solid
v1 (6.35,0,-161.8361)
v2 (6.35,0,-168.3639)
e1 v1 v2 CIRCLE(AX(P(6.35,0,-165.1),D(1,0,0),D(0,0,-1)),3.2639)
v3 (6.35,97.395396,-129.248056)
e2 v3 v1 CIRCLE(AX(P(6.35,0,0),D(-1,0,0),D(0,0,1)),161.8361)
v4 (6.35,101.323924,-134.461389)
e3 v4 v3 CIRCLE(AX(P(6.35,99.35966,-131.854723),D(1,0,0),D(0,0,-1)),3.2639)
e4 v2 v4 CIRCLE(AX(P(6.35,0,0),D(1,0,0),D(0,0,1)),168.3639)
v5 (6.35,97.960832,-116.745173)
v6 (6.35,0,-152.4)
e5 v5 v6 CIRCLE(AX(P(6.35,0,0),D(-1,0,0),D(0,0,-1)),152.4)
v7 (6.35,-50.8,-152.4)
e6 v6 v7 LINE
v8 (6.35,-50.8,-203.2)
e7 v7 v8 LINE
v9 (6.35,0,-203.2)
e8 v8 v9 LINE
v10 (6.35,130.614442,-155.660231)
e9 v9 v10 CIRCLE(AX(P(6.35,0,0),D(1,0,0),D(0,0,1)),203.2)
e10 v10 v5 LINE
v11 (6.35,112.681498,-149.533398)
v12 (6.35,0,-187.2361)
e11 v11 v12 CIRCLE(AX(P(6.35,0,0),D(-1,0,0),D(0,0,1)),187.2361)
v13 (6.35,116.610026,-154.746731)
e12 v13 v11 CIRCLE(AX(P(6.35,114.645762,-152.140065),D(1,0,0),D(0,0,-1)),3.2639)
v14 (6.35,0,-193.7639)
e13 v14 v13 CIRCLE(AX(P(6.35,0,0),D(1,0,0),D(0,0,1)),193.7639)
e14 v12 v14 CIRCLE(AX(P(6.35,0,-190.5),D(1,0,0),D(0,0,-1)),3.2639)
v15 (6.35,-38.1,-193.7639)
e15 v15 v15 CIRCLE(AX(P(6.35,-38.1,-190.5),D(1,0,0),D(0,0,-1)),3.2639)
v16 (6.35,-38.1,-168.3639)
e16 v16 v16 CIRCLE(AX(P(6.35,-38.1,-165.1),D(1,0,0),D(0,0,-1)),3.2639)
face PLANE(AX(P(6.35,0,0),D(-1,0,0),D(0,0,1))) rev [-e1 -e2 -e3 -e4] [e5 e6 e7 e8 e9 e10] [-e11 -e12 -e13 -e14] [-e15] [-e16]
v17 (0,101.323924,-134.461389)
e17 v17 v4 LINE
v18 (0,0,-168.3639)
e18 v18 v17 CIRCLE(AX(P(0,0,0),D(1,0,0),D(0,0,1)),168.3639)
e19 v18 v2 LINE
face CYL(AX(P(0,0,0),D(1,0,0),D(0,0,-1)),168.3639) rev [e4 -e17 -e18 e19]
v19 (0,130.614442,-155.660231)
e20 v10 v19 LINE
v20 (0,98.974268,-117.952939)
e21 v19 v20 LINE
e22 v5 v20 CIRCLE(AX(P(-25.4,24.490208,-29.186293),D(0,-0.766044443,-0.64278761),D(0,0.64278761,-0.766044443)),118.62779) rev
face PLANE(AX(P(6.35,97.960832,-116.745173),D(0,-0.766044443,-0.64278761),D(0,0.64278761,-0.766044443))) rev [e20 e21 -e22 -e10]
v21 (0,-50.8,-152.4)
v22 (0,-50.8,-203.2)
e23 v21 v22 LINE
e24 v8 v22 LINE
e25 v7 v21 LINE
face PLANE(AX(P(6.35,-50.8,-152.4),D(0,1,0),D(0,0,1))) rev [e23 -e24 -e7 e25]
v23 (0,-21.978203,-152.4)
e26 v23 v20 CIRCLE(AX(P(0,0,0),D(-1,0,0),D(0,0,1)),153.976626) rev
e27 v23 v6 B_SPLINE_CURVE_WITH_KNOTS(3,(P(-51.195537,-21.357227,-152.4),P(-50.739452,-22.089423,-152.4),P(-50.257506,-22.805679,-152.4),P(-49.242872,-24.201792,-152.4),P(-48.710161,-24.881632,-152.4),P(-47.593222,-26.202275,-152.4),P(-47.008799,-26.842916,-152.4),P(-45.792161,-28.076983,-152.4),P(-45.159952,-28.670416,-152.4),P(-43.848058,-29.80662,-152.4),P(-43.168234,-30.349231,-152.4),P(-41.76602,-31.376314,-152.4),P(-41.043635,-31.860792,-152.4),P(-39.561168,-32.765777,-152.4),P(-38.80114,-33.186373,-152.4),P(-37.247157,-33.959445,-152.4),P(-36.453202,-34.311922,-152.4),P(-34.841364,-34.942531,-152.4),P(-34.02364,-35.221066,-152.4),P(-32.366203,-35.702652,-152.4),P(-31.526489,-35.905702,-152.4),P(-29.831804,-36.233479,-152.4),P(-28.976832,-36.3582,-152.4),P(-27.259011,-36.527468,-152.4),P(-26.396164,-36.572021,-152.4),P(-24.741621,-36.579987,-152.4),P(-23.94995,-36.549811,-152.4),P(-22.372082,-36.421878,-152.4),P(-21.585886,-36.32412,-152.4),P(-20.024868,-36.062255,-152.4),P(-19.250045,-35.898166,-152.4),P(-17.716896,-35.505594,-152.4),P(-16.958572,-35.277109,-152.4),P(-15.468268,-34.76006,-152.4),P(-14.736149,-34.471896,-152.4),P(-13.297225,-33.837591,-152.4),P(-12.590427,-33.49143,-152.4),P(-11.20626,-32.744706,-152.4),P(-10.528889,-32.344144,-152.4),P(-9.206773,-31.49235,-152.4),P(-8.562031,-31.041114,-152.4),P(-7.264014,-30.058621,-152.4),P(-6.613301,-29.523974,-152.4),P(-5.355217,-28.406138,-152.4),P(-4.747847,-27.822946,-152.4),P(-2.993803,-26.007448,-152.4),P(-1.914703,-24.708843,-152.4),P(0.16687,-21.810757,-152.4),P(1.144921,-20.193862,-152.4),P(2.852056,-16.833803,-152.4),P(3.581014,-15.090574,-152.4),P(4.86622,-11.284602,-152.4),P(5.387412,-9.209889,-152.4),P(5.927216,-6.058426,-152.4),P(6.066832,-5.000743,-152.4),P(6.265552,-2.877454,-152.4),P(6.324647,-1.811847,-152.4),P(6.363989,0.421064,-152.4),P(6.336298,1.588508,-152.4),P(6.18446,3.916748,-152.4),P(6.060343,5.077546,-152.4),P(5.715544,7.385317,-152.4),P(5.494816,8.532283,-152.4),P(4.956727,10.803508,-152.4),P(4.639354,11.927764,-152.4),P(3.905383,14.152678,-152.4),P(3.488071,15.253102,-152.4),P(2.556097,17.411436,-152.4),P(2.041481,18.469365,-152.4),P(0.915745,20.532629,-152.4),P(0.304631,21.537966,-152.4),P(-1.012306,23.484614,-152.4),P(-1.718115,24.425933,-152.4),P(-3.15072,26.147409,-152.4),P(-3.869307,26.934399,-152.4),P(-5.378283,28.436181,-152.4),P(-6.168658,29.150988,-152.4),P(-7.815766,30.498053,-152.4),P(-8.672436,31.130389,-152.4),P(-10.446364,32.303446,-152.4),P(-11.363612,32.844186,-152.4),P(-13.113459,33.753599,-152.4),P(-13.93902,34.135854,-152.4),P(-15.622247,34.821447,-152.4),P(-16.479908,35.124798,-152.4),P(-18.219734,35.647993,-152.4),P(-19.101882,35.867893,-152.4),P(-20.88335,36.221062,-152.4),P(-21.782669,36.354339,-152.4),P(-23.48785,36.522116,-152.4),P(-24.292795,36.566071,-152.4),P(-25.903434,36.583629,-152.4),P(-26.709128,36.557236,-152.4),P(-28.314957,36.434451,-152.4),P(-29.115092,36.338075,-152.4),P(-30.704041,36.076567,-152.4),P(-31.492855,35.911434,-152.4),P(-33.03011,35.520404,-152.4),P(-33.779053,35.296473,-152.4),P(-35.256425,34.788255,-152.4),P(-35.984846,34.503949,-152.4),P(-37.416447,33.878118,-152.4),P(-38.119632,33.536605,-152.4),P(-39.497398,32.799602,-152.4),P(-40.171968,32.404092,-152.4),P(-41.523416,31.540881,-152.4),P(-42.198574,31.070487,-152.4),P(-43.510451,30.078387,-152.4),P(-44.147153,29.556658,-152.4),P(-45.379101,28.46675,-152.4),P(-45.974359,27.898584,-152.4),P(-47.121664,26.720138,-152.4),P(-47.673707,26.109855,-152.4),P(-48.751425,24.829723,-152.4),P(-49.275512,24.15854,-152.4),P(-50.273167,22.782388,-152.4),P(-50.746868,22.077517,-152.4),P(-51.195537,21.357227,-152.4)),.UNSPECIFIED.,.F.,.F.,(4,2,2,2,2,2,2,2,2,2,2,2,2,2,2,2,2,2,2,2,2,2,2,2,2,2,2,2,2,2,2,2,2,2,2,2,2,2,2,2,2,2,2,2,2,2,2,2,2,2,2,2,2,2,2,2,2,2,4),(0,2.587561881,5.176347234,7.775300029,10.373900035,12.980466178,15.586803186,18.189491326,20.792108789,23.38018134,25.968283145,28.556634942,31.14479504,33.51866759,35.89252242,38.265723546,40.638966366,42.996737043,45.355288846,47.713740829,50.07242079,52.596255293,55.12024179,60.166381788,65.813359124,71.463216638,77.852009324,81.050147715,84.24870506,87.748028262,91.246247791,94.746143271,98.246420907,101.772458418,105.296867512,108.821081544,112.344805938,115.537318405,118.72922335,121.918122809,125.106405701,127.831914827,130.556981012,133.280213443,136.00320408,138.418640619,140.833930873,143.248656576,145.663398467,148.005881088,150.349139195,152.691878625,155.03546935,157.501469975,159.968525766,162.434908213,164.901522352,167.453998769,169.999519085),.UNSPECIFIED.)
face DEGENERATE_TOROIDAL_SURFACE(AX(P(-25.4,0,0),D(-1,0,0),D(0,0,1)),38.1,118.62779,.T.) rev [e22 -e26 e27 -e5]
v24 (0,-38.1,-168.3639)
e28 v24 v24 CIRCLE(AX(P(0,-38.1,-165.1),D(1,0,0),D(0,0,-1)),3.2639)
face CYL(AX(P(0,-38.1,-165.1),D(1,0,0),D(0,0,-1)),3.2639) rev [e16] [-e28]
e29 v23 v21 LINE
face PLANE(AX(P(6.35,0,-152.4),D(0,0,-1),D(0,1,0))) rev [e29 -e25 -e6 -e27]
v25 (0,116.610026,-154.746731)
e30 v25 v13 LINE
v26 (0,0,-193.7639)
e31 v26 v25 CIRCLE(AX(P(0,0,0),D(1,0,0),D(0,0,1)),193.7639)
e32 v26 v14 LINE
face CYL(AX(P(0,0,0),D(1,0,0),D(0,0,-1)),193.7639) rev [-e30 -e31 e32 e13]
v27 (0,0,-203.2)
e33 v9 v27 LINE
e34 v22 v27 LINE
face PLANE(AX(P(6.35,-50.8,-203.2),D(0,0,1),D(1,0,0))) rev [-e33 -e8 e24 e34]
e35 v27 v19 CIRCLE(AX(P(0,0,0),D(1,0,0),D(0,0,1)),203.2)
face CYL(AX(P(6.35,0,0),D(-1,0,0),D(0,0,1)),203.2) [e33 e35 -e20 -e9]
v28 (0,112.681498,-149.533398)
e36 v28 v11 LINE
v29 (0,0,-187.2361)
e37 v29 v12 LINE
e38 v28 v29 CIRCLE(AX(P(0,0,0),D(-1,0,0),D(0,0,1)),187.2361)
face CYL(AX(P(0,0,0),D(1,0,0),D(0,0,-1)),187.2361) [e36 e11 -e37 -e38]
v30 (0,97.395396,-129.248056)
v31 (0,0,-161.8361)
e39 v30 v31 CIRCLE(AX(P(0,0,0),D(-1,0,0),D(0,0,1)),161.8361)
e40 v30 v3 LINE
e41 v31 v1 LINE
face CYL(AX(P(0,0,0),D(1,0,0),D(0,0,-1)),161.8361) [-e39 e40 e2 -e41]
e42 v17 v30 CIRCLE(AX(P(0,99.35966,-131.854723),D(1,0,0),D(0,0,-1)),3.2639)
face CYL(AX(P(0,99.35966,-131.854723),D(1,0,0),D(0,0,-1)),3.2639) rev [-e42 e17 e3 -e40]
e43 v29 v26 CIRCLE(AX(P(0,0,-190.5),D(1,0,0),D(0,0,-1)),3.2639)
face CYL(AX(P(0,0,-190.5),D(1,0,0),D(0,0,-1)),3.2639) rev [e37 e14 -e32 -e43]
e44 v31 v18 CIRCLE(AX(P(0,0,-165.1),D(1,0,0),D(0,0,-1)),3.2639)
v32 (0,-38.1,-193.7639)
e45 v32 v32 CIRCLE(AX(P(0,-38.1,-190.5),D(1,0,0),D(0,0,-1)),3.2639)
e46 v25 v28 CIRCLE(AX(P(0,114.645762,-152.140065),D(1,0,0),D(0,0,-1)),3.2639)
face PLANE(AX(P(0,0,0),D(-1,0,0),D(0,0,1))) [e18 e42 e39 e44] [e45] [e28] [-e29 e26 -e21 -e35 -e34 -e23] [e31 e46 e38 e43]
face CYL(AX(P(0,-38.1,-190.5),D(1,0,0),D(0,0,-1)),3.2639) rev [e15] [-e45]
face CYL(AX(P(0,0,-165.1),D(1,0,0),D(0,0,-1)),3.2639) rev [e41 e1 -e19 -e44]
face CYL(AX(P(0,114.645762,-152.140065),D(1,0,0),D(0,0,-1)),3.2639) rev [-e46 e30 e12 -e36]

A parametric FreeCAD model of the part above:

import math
import FreeCAD as App
import Part
import Sketcher
Q = App.Units.Quantity

doc = App.newDocument("Part")
body = doc.addObject("PartDesign::Body", "Body")

sketch1 = body.newObject("Sketcher::SketchObject", "Sketch")
sketch1.AttachmentSupport = (doc.getObject("YZ_Plane"), [""])
sketch1.MapMode = "FlatFace"
sketch1.addGeometry([
    Part.LineSegment(App.Vector(0, -152, 0), App.Vector(-51, -152, 0)),
    Part.LineSegment(App.Vector(-51, -152, 0), App.Vector(-51, -203, 0)),
    Part.LineSegment(App.Vector(-51, -203, 0), App.Vector(0, -203, 0)),
    Part.ArcOfCircle(Part.Circle(App.Vector(0, 0, 0), App.Vector(0, 0, 1), 203), math.radians(-90), math.radians(-50)),
    Part.LineSegment(App.Vector(131, -156, 0), App.Vector(98, -117, 0)),
    Part.ArcOfCircle(Part.Circle(App.Vector(0, 0, 0), App.Vector(0, 0, 1), 152), math.radians(-90), math.radians(-50)),
], False)
sketch1.addConstraint([
    Sketcher.Constraint("Coincident", 0, 2, 1, 1),
    Sketcher.Constraint("Coincident", 1, 2, 2, 1),
    Sketcher.Constraint("Tangent", 2, 2, 3, 1),
    Sketcher.Constraint("Coincident", 3, 2, 4, 1),
    Sketcher.Constraint("Coincident", 4, 2, 5, 2),
    Sketcher.Constraint("Tangent", 5, 1, 0, 1),
    Sketcher.Constraint("Horizontal", 0),
    Sketcher.Constraint("Vertical", 1),
    Sketcher.Constraint("Horizontal", 2),
    Sketcher.Constraint("Coincident", 3, 3, -1, 1),
    Sketcher.Constraint("Coincident", 5, 3, -1, 1),
    Sketcher.Constraint("Equal", 2, 1),
    Sketcher.Constraint("Radius", 3, Q("8 in")),
    Sketcher.Constraint("Radius", 5, Q("6 in")),
    Sketcher.Constraint("Angle", 4, Q("130 deg")),
    Sketcher.Constraint("DistanceY", 3, 2, -1, 1, 155.660231),
])
pad1 = body.newObject("PartDesign::Pad", "Pad")
pad1.Profile = sketch1
pad1.Length = Q("0.25 in")

sketch2 = body.newObject("Sketcher::SketchObject", "Sketch001")
sketch2.AttachmentSupport = (doc.getObject("YZ_Plane"), [""])
sketch2.MapMode = "FlatFace"
sketch2.AttachmentOffset = App.Placement(App.Vector(0, 0, 0.25 * 25.4), App.Rotation())
sketch2.addGeometry([
    Part.ArcOfCircle(Part.Circle(App.Vector(99.4, -131.9, 0), App.Vector(0, 0, 1), 3.3), math.radians(-53), math.radians(127)),
    Part.ArcOfCircle(Part.Circle(App.Vector(0, 0, 0), App.Vector(0, 0, 1), 161.8), math.radians(-90), math.radians(-53)),
    Part.ArcOfCircle(Part.Circle(App.Vector(0, -165.1, 0), App.Vector(0, 0, 1), 3.3), math.radians(90), math.radians(270)),
    Part.ArcOfCircle(Part.Circle(App.Vector(0, 0, 0), App.Vector(0, 0, 1), 168.4), math.radians(-90), math.radians(-53)),
    Part.ArcOfCircle(Part.Circle(App.Vector(114.6, -152.1, 0), App.Vector(0, 0, 1), 3.3), math.radians(-53), math.radians(127)),
    Part.ArcOfCircle(Part.Circle(App.Vector(0, 0, 0), App.Vector(0, 0, 1), 187.2), math.radians(-90), math.radians(-53)),
    Part.ArcOfCircle(Part.Circle(App.Vector(0, -190.5, 0), App.Vector(0, 0, 1), 3.3), math.radians(90), math.radians(270)),
    Part.ArcOfCircle(Part.Circle(App.Vector(0, 0, 0), App.Vector(0, 0, 1), 193.8), math.radians(-90), math.radians(-53)),
], False)
sketch2.addConstraint([
    Sketcher.Constraint("Tangent", 0, 2, 1, 2),
    Sketcher.Constraint("Tangent", 1, 1, 2, 1),
    Sketcher.Constraint("Tangent", 2, 2, 3, 1),
    Sketcher.Constraint("Tangent", 3, 2, 0, 1),
    Sketcher.Constraint("Tangent", 4, 2, 5, 2),
    Sketcher.Constraint("Tangent", 5, 1, 6, 1),
    Sketcher.Constraint("Tangent", 6, 2, 7, 1),
    Sketcher.Constraint("Tangent", 7, 2, 4, 1),
    Sketcher.Constraint("Coincident", 1, 3, -1, 1),
    Sketcher.Constraint("Coincident", 3, 3, -1, 1),
    Sketcher.Constraint("Coincident", 5, 3, -1, 1),
    Sketcher.Constraint("Coincident", 7, 3, -1, 1),
    Sketcher.Constraint("Equal", 2, 4),
    Sketcher.Constraint("PointOnObject", 2, 3, -2),
    Sketcher.Constraint("PointOnObject", 6, 3, -2),
    Sketcher.Constraint("DistanceY", 6, 3, 2, 3, Q("1 in")),
    Sketcher.Constraint("DistanceY", 2, 3, -1, 1, Q("6.5 in")),
    Sketcher.Constraint("Radius", 0, Q("0.1285 in")),
    Sketcher.Constraint("DistanceY", 4, 2, -1, 1, 149.533398),
    Sketcher.Constraint("DistanceX", 0, 3, 4, 3, 15.286102),
])
pocket1 = body.newObject("PartDesign::Pocket", "Pocket")
pocket1.Profile = sketch2
pocket1.Length = Q("0.25 in")

sketch3 = body.newObject("Sketcher::SketchObject", "Sketch002")
sketch3.AttachmentSupport = (doc.getObject("YZ_Plane"), [""])
sketch3.MapMode = "FlatFace"
sketch3.AttachmentOffset = App.Placement(App.Vector(0, 0, 0.25 * 25.4), App.Rotation())
sketch3.addGeometry([
    Part.Circle(App.Vector(-38.1, -165.1, 0), App.Vector(0, 0, 1), 3.3),
    Part.Circle(App.Vector(-38.1, -190.5, 0), App.Vector(0, 0, 1), 3.3),
], False)
sketch3.addConstraint([
    Sketcher.Constraint("Equal", 0, 1),
    Sketcher.Constraint("Vertical", 0, 3, 1, 3),
    Sketcher.Constraint("Diameter", 0, Q("0.257 in")),
    Sketcher.Constraint("DistanceY", 1, 3, 0, 3, Q("1 in")),
    Sketcher.Constraint("DistanceX", 0, 3, -1, 1, Q("1.5 in")),
    Sketcher.Constraint("DistanceY", 0, 3, -1, 1, Q("6.5 in")),
])
pocket2 = body.newObject("PartDesign::Pocket", "Pocket001")
pocket2.Profile = sketch3
pocket2.Length = Q("0.25 in")

sketch4 = body.newObject("Sketcher::SketchObject", "Sketch003")
sketch4.AttachmentSupport = (doc.getObject("XZ_Plane"), [""])
sketch4.MapMode = "FlatFace"
sketch4.addGeometry([
    Part.ArcOfCircle(Part.Circle(App.Vector(-25, -38, 0), App.Vector(0, 0, 1), 119), math.radians(180), math.radians(360)),
    Part.LineSegment(App.Vector(-144, -38, 0), App.Vector(93, -38, 0)),
], False)
sketch4.addConstraint([
    Sketcher.Constraint("Coincident", 0, 1, 1, 1),
    Sketcher.Constraint("Coincident", 1, 2, 0, 2),
    Sketcher.Constraint("Horizontal", 1),
    Sketcher.Constraint("DistanceX", 0, 3, -1, 1, Q("1 in")),
    Sketcher.Constraint("DistanceY", 0, 3, -1, 1, Q("1.5 in")),
    Sketcher.Constraint("DistanceY", 0, 1, -1, 1, Q("1.5 in")),
    Sketcher.Constraint("Radius", 0, 118.62779),
])
groove = body.newObject("PartDesign::Groove", "Groove")
groove.Profile = sketch4
groove.ReferenceAxis = (sketch4, ["H_Axis"])
groove.Angle = 360

doc.recompute()
